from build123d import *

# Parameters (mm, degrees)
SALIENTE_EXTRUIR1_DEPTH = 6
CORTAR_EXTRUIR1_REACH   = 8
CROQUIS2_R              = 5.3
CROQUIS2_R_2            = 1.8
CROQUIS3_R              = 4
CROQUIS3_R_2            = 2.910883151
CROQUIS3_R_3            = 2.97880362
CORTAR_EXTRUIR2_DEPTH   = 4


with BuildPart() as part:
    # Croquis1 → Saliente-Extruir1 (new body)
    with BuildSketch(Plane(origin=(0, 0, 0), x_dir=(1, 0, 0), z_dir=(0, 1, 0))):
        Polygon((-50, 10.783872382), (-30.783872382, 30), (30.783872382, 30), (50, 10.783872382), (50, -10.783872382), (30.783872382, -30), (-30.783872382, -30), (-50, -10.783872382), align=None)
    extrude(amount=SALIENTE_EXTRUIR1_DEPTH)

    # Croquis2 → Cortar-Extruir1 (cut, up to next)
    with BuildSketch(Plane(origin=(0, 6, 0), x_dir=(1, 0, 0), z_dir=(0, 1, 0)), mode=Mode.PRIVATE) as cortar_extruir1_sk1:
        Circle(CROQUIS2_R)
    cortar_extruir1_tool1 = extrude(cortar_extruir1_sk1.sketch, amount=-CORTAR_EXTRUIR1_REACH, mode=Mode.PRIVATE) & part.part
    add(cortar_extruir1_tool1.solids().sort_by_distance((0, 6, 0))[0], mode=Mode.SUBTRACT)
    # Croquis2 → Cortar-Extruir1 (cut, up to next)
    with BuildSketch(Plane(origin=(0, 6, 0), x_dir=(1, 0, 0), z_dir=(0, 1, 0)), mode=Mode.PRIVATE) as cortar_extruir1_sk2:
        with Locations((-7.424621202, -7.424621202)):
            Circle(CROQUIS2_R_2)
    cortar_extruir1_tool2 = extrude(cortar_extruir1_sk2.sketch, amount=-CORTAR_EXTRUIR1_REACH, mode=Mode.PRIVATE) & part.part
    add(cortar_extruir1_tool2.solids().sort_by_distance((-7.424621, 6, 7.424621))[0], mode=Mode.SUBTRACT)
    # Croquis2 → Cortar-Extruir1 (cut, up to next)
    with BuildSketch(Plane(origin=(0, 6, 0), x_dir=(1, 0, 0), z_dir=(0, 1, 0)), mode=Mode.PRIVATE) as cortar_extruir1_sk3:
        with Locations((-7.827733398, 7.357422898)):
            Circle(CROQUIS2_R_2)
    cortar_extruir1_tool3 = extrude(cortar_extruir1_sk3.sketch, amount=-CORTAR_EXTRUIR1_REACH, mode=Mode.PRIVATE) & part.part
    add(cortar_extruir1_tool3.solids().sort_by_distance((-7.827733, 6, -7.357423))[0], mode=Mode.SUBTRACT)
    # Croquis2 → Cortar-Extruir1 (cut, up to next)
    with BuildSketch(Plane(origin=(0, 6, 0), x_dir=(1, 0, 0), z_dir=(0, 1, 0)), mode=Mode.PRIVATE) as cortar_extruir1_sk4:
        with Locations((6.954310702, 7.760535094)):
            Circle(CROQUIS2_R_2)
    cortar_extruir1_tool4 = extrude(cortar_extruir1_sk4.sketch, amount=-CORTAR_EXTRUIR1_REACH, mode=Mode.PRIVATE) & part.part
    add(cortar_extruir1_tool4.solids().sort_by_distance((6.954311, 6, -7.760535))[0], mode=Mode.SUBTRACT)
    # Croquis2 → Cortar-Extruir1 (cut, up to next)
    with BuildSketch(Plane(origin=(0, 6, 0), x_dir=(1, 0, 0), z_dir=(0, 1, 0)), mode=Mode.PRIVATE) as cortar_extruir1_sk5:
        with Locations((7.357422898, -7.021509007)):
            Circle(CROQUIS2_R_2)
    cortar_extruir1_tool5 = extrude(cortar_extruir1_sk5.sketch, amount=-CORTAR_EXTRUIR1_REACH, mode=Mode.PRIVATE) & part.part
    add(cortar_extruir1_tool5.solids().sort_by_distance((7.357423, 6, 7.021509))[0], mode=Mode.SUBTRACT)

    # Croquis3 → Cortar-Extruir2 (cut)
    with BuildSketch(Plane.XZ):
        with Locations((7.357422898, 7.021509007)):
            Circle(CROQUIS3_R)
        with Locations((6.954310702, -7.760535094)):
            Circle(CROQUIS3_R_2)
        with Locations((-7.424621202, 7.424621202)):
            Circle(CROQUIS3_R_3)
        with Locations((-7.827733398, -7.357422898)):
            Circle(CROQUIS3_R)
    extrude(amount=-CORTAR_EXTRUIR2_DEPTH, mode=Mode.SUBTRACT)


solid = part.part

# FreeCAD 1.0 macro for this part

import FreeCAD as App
import Part
import Sketcher
from FreeCAD import Vector
Q = App.Units.Quantity


def add_polygon(sketch, points):
    """Adds a closed chain of lines whose ends are joined by coincident constraints."""
    first, n = sketch.GeometryCount, len(points)
    for a, b in zip(points, points[1:] + points[:1]):
        sketch.addGeometry(Part.LineSegment(App.Vector(*a, 0), App.Vector(*b, 0)), False)
    for i in range(n):
        sketch.addConstraint(Sketcher.Constraint("Coincident", first + i, 2, first + (i + 1) % n, 1))

doc = App.newDocument("Part")
body = doc.addObject("PartDesign::Body", "Body")

# Sketch on XZ plane
sketch1 = body.newObject("Sketcher::SketchObject", "Sketch")
sketch1.AttachmentSupport = (doc.getObject("XZ_Plane"), [""])
sketch1.MapMode = "FlatFace"
add_polygon(sketch1, [(-30.783872, -30), (-50, -10.783872), (-50, 10.783872), (-30.783872, 30), (30.783872, 30), (50, 10.783872), (50, -10.783872), (30.783872, -30)])  # lines 0-7
sketch1.addConstraint(Sketcher.Constraint("Vertical", 1))
sketch1.addConstraint(Sketcher.Constraint("Horizontal", 3))
sketch1.addConstraint(Sketcher.Constraint("Vertical", 5))
sketch1.addConstraint(Sketcher.Constraint("Horizontal", 7))
sketch1.addConstraint(Sketcher.Constraint("Symmetric", 0, 2, 4, 2, -1, 1))
sketch1.addConstraint(Sketcher.Constraint("Symmetric", 2, 2, 6, 2, -1, 1))
sketch1.addConstraint(Sketcher.Constraint("Perpendicular", 0, 2))
sketch1.addConstraint(Sketcher.Constraint("Perpendicular", 2, 4))
sketch1.addConstraint(Sketcher.Constraint("Perpendicular", 4, 6))
sketch1.addConstraint(Sketcher.Constraint("Horizontal", 1, 2, 4, 2))
sketch1.addConstraint(Sketcher.Constraint("Vertical", 3, 2, 6, 2))
sketch1.addConstraint(Sketcher.Constraint("DistanceX", 0, 2, -1, 1, Q("50 mm")))
sketch1.addConstraint(Sketcher.Constraint("DistanceY", -1, 1, 2, 2, Q("30 mm")))
sketch1.addConstraint(Sketcher.Constraint("Distance", 0, Q("27.175708 mm")))
pad1 = body.newObject("PartDesign::Pad", "Pad")
pad1.Profile = sketch1
pad1.Length = 6
pad1.Reversed = True

# Sketch on XZ plane
sketch2 = body.newObject("Sketcher::SketchObject", "Sketch001")
sketch2.AttachmentSupport = (doc.getObject("XZ_Plane"), [""])
sketch2.MapMode = "FlatFace"
sketch2.AttachmentOffset = App.Placement(Vector(0, 0, -6), App.Rotation())
sketch2.addGeometry(Part.Circle(Vector(0, 0, 0), Vector(0, 0, 1), 5.3), False)
sketch2.addConstraint(Sketcher.Constraint("Coincident", 0, 3, -1, 1))
sketch2.addConstraint(Sketcher.Constraint("Diameter", 0, Q("10.6 mm")))
pocket1 = body.newObject("PartDesign::Pocket", "Pocket")
pocket1.Profile = sketch2
pocket1.Type = "UpToFirst"
pocket1.Reversed = True

# Sketch on XZ plane
sketch3 = body.newObject("Sketcher::SketchObject", "Sketch002")
sketch3.AttachmentSupport = (doc.getObject("XZ_Plane"), [""])
sketch3.MapMode = "FlatFace"
sketch3.AttachmentOffset = App.Placement(Vector(0, 0, -6), App.Rotation())
sketch3.addGeometry(Part.Circle(Vector(-7.424621, 7.424621, 0), Vector(0, 0, 1), 1.8), False)
sketch3.addConstraint(Sketcher.Constraint("Diameter", 0, Q("3.6 mm")))
sketch3.addConstraint(Sketcher.Constraint("DistanceX", 0, 3, -1, 1, Q("7.424621 mm")))
sketch3.addConstraint(Sketcher.Constraint("DistanceY", -1, 1, 0, 3, Q("7.424621 mm")))
pocket2 = body.newObject("PartDesign::Pocket", "Pocket001")
pocket2.Profile = sketch3
pocket2.Type = "UpToFirst"
pocket2.Reversed = True

# Sketch on XZ plane
sketch4 = body.newObject("Sketcher::SketchObject", "Sketch003")
sketch4.AttachmentSupport = (doc.getObject("XZ_Plane"), [""])
sketch4.MapMode = "FlatFace"
sketch4.AttachmentOffset = App.Placement(Vector(0, 0, -6), App.Rotation())
sketch4.addGeometry(Part.Circle(Vector(-7.827733, -7.357423, 0), Vector(0, 0, 1), 1.8), False)
sketch4.addConstraint(Sketcher.Constraint("Diameter", 0, Q("3.6 mm")))
sketch4.addConstraint(Sketcher.Constraint("DistanceX", 0, 3, -1, 1, Q("7.827733 mm")))
sketch4.addConstraint(Sketcher.Constraint("DistanceY", 0, 3, -1, 1, Q("7.357423 mm")))
pocket3 = body.newObject("PartDesign::Pocket", "Pocket002")
pocket3.Profile = sketch4
pocket3.Type = "UpToFirst"
pocket3.Reversed = True

# Sketch on XZ plane
sketch5 = body.newObject("Sketcher::SketchObject", "Sketch004")
sketch5.AttachmentSupport = (doc.getObject("XZ_Plane"), [""])
sketch5.MapMode = "FlatFace"
sketch5.AttachmentOffset = App.Placement(Vector(0, 0, -6), App.Rotation())
sketch5.addGeometry(Part.Circle(Vector(6.954311, -7.760535, 0), Vector(0, 0, 1), 1.8), False)
sketch5.addConstraint(Sketcher.Constraint("Diameter", 0, Q("3.6 mm")))
sketch5.addConstraint(Sketcher.Constraint("DistanceX", -1, 1, 0, 3, Q("6.954311 mm")))
sketch5.addConstraint(Sketcher.Constraint("DistanceY", 0, 3, -1, 1, Q("7.760535 mm")))
pocket4 = body.newObject("PartDesign::Pocket", "Pocket003")
pocket4.Profile = sketch5
pocket4.Type = "UpToFirst"
pocket4.Reversed = True

# Sketch on XZ plane
sketch6 = body.newObject("Sketcher::SketchObject", "Sketch005")
sketch6.AttachmentSupport = (doc.getObject("XZ_Plane"), [""])
sketch6.MapMode = "FlatFace"
sketch6.AttachmentOffset = App.Placement(Vector(0, 0, -6), App.Rotation())
sketch6.addGeometry(Part.Circle(Vector(7.357423, 7.021509, 0), Vector(0, 0, 1), 1.8), False)
sketch6.addConstraint(Sketcher.Constraint("Diameter", 0, Q("3.6 mm")))
sketch6.addConstraint(Sketcher.Constraint("DistanceY", -1, 1, 0, 3, Q("7.021509 mm")))
sketch6.addConstraint(Sketcher.Constraint("DistanceX", -1, 1, 0, 3, Q("7.357423 mm")))
pocket5 = body.newObject("PartDesign::Pocket", "Pocket004")
pocket5.Profile = sketch6
pocket5.Type = "UpToFirst"
pocket5.Reversed = True

# Sketch on XZ plane
sketch7 = body.newObject("Sketcher::SketchObject", "Sketch006")
sketch7.AttachmentSupport = (doc.getObject("XZ_Plane"), [""])
sketch7.MapMode = "FlatFace"
sketch7.addGeometry(Part.Circle(Vector(7.357423, 7.021509, 0), Vector(0, 0, 1), 4), False)
sketch7.addGeometry(Part.Circle(Vector(6.954311, -7.760535, 0), Vector(0, 0, 1), 2.910883), False)
sketch7.addGeometry(Part.Circle(Vector(-7.424621, 7.424621, 0), Vector(0, 0, 1), 2.978804), False)
sketch7.addGeometry(Part.Circle(Vector(-7.827733, -7.357423, 0), Vector(0, 0, 1), 4), False)
sketch7.addConstraint(Sketcher.Constraint("Equal", 0, 3))
sketch7.addConstraint(Sketcher.Constraint("Diameter", 0, Q("8 mm")))
sketch7.addConstraint(Sketcher.Constraint("Diameter", 1, Q("5.821766 mm")))
sketch7.addConstraint(Sketcher.Constraint("Diameter", 2, Q("5.957607 mm")))
sketch7.addConstraint(Sketcher.Constraint("DistanceY", -1, 1, 0, 3, Q("7.021509 mm")))
sketch7.addConstraint(Sketcher.Constraint("DistanceX", -1, 1, 1, 3, Q("6.954311 mm")))
sketch7.addConstraint(Sketcher.Constraint("DistanceX", 2, 3, -1, 1, Q("7.424621 mm")))
sketch7.addConstraint(Sketcher.Constraint("DistanceY", -1, 1, 2, 3, Q("7.424621 mm")))
sketch7.addConstraint(Sketcher.Constraint("DistanceY", 3, 3, 0, 3, Q("14.378932 mm")))
sketch7.addConstraint(Sketcher.Constraint("DistanceX", -1, 1, 0, 3, Q("7.357423 mm")))
sketch7.addConstraint(Sketcher.Constraint("DistanceY", 1, 3, -1, 1, Q("7.760535 mm")))
sketch7.addConstraint(Sketcher.Constraint("DistanceX", 3, 3, -1, 1, Q("7.827733 mm")))
pocket6 = body.newObject("PartDesign::Pocket", "Pocket005")
pocket6.Profile = sketch7
pocket6.Length = 4

doc.recompute()
